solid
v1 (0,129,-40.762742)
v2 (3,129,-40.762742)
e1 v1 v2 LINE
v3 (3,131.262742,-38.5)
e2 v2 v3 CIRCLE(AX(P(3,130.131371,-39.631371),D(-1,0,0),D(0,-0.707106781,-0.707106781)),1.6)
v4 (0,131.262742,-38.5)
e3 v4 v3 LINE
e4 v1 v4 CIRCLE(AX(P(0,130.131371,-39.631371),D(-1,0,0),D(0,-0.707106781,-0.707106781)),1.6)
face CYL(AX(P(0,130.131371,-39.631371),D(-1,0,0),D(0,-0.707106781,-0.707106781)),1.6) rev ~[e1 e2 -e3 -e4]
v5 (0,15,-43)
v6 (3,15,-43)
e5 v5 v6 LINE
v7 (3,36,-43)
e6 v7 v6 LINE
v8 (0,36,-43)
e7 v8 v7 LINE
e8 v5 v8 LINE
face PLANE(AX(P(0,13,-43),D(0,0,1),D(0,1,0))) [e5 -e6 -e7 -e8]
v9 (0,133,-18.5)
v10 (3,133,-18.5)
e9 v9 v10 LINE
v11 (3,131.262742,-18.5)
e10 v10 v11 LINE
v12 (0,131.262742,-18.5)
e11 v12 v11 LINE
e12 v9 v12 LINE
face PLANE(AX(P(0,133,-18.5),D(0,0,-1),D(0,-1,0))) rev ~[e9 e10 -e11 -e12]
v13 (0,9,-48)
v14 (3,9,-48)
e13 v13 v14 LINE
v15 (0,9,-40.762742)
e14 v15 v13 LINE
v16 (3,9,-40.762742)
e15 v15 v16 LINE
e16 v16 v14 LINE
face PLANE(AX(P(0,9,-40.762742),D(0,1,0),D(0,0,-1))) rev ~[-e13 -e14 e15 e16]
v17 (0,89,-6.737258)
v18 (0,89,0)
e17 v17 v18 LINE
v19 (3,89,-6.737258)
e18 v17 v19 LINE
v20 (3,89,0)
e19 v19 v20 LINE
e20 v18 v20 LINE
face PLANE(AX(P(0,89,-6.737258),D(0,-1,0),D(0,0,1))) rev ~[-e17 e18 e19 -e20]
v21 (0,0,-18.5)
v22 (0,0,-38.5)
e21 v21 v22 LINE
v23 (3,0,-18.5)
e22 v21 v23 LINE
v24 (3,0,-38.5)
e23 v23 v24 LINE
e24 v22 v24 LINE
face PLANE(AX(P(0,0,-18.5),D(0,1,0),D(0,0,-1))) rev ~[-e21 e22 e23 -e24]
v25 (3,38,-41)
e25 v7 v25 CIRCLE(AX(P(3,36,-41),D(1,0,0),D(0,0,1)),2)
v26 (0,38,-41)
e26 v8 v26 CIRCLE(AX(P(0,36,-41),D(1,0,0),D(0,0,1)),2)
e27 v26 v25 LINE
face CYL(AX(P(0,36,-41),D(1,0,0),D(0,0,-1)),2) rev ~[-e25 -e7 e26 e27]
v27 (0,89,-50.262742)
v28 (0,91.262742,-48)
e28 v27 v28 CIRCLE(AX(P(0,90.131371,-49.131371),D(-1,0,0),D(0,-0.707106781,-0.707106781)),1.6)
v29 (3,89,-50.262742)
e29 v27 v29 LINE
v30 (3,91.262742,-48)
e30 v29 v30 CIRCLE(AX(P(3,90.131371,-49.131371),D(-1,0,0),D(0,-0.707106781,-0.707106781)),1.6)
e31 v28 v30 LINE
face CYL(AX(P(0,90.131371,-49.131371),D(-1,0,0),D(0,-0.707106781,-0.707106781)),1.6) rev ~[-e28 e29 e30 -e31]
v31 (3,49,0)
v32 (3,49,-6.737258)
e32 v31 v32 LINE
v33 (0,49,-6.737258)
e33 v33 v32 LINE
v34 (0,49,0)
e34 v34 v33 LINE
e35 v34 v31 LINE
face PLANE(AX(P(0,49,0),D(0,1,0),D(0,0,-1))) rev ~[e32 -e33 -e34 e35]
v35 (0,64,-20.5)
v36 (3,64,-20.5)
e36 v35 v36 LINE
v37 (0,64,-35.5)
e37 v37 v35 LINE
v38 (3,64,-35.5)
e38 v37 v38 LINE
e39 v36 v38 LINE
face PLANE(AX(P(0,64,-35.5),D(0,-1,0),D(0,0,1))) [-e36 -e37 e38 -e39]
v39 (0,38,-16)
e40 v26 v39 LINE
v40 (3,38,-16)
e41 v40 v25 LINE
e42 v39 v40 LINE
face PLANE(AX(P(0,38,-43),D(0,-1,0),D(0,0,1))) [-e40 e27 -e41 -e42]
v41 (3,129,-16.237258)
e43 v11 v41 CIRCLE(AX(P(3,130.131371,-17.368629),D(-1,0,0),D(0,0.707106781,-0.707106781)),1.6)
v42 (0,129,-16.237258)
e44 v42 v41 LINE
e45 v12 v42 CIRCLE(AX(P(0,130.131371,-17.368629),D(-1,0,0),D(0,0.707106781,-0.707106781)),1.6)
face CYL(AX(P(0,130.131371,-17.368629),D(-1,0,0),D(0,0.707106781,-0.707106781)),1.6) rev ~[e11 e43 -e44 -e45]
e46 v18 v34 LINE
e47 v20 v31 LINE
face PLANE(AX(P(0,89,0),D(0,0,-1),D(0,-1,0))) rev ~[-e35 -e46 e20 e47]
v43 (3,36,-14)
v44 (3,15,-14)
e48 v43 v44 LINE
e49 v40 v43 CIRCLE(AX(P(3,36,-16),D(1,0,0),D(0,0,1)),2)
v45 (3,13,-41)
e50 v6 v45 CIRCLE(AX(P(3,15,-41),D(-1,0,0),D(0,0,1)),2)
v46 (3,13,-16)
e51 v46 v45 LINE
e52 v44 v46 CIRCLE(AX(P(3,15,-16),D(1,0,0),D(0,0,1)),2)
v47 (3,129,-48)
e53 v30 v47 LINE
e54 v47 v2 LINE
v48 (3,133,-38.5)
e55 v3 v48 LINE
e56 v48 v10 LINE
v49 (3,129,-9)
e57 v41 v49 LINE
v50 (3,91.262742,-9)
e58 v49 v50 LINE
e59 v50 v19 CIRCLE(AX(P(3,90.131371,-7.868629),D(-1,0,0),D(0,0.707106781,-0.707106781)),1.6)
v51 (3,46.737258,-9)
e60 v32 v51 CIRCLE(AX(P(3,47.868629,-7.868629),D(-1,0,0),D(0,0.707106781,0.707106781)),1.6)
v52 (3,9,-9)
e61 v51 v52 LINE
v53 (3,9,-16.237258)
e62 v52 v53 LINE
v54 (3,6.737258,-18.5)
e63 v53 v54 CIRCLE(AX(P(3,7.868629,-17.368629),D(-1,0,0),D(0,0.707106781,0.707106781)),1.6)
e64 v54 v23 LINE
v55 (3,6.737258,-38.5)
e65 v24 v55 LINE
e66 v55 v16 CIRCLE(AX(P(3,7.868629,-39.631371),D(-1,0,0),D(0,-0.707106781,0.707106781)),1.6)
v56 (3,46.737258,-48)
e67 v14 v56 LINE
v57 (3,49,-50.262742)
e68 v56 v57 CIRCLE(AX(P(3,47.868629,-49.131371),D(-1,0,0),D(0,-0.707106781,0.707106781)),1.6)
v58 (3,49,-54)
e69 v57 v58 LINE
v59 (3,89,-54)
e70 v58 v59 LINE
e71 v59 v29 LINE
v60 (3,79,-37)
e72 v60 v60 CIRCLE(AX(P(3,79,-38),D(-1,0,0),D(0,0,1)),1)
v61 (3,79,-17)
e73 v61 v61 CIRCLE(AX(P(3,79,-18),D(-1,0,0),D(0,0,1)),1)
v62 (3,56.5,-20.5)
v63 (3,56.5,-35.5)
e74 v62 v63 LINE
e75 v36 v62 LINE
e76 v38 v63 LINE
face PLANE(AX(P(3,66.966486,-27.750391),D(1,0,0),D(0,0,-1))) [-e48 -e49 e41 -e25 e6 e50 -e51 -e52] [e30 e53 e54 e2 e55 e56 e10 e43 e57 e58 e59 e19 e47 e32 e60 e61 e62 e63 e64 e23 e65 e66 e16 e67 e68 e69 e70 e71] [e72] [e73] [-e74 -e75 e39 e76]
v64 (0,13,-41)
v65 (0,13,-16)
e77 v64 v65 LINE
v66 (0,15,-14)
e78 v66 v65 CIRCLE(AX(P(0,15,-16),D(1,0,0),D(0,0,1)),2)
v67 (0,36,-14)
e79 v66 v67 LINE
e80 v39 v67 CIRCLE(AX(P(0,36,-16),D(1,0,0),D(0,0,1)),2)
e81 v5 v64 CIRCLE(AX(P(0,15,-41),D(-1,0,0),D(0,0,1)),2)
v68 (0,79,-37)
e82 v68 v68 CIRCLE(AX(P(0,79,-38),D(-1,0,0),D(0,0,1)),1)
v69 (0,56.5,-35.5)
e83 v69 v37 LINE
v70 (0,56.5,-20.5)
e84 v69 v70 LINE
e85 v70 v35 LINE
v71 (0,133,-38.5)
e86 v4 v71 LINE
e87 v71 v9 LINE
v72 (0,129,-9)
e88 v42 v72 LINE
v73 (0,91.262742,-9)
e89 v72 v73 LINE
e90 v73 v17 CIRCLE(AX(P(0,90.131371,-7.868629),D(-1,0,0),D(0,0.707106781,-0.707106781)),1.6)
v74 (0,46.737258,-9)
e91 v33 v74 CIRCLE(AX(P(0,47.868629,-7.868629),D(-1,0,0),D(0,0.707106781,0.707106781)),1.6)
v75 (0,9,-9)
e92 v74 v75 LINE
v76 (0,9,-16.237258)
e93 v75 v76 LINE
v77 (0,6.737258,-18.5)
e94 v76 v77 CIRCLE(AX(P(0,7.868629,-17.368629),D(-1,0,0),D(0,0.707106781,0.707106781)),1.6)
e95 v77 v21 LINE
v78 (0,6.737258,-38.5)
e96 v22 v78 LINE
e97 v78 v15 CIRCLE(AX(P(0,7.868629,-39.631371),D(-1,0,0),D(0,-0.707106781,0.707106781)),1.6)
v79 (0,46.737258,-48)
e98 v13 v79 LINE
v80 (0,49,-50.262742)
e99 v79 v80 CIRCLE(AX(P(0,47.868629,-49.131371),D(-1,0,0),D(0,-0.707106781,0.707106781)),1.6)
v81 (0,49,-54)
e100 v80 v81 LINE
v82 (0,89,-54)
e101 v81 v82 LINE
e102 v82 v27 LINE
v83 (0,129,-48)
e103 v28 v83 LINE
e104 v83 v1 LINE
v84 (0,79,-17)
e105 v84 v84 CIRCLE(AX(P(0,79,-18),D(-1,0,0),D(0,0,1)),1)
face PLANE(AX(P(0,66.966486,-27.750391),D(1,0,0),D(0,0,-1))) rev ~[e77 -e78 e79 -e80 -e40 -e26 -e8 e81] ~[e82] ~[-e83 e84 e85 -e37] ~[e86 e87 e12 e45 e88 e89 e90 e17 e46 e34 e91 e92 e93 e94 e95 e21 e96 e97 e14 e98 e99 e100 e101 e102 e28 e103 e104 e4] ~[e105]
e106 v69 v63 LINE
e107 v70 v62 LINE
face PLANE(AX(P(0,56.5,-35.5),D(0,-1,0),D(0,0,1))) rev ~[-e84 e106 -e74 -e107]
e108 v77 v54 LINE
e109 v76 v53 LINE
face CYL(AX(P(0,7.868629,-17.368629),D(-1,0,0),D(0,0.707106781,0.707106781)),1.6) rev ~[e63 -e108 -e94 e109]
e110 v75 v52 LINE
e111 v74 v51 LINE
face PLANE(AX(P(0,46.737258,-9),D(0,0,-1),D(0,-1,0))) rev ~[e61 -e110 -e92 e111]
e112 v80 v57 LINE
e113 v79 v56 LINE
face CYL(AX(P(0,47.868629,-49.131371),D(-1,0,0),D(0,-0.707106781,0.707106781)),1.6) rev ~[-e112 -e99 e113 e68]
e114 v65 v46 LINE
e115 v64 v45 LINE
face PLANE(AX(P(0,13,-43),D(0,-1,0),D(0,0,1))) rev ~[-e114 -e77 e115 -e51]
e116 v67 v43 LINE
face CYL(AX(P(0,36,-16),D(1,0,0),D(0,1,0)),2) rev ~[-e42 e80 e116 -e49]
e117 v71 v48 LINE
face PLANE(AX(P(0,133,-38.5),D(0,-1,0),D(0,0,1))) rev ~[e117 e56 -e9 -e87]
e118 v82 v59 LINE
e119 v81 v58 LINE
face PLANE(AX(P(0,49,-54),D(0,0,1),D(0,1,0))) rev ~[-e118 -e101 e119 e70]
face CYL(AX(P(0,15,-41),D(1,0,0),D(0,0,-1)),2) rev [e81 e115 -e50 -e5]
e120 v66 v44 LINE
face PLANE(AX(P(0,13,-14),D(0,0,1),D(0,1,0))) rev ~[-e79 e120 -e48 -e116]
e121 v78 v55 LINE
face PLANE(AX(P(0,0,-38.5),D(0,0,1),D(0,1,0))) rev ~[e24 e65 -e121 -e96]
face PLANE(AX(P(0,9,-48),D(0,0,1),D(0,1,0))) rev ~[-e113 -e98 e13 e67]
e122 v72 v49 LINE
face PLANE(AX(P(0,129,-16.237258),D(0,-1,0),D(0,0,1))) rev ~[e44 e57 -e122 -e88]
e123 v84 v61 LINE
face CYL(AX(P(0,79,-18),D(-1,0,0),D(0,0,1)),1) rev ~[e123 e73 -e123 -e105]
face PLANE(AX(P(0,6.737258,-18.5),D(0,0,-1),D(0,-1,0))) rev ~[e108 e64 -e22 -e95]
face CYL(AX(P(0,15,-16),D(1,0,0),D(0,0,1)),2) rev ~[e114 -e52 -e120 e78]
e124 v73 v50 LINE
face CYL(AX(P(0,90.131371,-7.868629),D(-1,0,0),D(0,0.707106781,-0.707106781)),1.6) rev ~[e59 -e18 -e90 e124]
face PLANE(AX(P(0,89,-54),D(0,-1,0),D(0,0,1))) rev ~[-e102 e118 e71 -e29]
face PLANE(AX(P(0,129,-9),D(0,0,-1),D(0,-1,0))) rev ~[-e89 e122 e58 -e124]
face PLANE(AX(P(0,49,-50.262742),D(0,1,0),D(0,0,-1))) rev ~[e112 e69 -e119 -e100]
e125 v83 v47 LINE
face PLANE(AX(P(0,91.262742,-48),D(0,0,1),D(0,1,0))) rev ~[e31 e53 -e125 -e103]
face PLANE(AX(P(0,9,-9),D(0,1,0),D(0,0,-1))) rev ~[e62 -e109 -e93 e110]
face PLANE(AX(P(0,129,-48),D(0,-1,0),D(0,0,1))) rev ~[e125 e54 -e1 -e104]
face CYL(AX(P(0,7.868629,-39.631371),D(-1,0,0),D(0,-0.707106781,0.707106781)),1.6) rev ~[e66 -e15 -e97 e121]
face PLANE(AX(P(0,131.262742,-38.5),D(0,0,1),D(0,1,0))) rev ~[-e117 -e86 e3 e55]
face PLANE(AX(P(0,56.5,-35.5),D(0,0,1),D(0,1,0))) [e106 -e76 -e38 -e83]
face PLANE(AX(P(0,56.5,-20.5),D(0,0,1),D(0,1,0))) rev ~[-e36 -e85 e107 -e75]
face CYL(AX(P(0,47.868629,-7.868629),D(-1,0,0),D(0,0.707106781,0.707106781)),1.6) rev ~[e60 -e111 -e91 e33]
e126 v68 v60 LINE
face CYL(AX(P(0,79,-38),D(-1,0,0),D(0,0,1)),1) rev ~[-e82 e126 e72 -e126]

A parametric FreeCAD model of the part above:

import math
import FreeCAD as App
import Part
import Sketcher

V = App.Vector


def edges_at(feature, points):
    """Names of the edges that pass closest to the given points."""
    edges = feature.Shape.Edges
    near = lambda p: min(range(len(edges)), key=lambda i: edges[i].distToShape(Part.Vertex(*p))[0])
    return sorted({f"Edge{near(p) + 1}" for p in points})


def add_polygon(sketch, points):
    """Adds a closed chain of lines whose ends are joined by coincident constraints."""
    first, n = sketch.GeometryCount, len(points)
    for a, b in zip(points, points[1:] + points[:1]):
        sketch.addGeometry(Part.LineSegment(App.Vector(*a, 0), App.Vector(*b, 0)), False)
    for i in range(n):
        sketch.addConstraint(Sketcher.Constraint("Coincident", first + i, 2, first + (i + 1) % n, 1))

doc = App.newDocument("Part")
body = doc.addObject("PartDesign::Body", "Body")

sketch1 = doc.addObject("Sketcher::SketchObject", "Sketch")
body.addObject(sketch1)
sketch1.AttachmentSupport = (doc.YZ_Plane, [""])
sketch1.MapMode = "FlatFace"
sketch1.addGeometry([
    Part.LineSegment(V(6.737258, -18.5, 0), V(0, -18.5, 0)),
    Part.LineSegment(V(0, -18.5, 0), V(0, -38.5, 0)),
    Part.LineSegment(V(0, -38.5, 0), V(6.737258, -38.5, 0)),
    Part.ArcOfCircle(Part.Circle(V(7.868629, -39.631371, 0), V(0, 0, 1), 1.6), math.radians(-45), math.radians(135)),
    Part.LineSegment(V(9, -40.762742, 0), V(9, -48, 0)),
    Part.LineSegment(V(9, -48, 0), V(46.737258, -48, 0)),
    Part.ArcOfCircle(Part.Circle(V(47.868629, -49.131371, 0), V(0, 0, 1), 1.6), math.radians(-45), math.radians(135)),
    Part.LineSegment(V(49, -50.262742, 0), V(49, -54, 0)),
    Part.LineSegment(V(49, -54, 0), V(89, -54, 0)),
    Part.LineSegment(V(89, -54, 0), V(89, -50.262742, 0)),
    Part.ArcOfCircle(Part.Circle(V(90.131371, -49.131371, 0), V(0, 0, 1), 1.6), math.radians(45), math.radians(225)),
    Part.LineSegment(V(91.262742, -48, 0), V(129, -48, 0)),
    Part.LineSegment(V(129, -48, 0), V(129, -40.762742, 0)),
    Part.ArcOfCircle(Part.Circle(V(130.131371, -39.631371, 0), V(0, 0, 1), 1.6), math.radians(45), math.radians(225)),
    Part.LineSegment(V(131.262742, -38.5, 0), V(133, -38.5, 0)),
    Part.LineSegment(V(133, -38.5, 0), V(133, -18.5, 0)),
    Part.LineSegment(V(133, -18.5, 0), V(131.262742, -18.5, 0)),
    Part.ArcOfCircle(Part.Circle(V(130.131371, -17.368629, 0), V(0, 0, 1), 1.6), math.radians(135), math.radians(315)),
    Part.LineSegment(V(129, -16.237258, 0), V(129, -9, 0)),
    Part.LineSegment(V(129, -9, 0), V(91.262742, -9, 0)),
    Part.ArcOfCircle(Part.Circle(V(90.131371, -7.868629, 0), V(0, 0, 1), 1.6), math.radians(135), math.radians(315)),
    Part.LineSegment(V(89, -6.737258, 0), V(89, 0, 0)),
    Part.LineSegment(V(89, 0, 0), V(49, 0, 0)),
    Part.LineSegment(V(49, 0, 0), V(49, -6.737258, 0)),
    Part.ArcOfCircle(Part.Circle(V(47.868629, -7.868629, 0), V(0, 0, 1), 1.6), math.radians(-135), math.radians(45)),
    Part.LineSegment(V(46.737258, -9, 0), V(9, -9, 0)),
    Part.LineSegment(V(9, -9, 0), V(9, -16.237258, 0)),
    Part.ArcOfCircle(Part.Circle(V(7.868629, -17.368629, 0), V(0, 0, 1), 1.6), math.radians(-135), math.radians(45)),
], False)
sketch1.addConstraint([
    Sketcher.Constraint("Coincident", 0, 2, 1, 1),
    Sketcher.Constraint("Coincident", 1, 2, 2, 1),
    Sketcher.Constraint("Coincident", 2, 2, 3, 2),
    Sketcher.Constraint("Coincident", 3, 1, 4, 1),
    Sketcher.Constraint("Coincident", 4, 2, 5, 1),
    Sketcher.Constraint("Coincident", 5, 2, 6, 2),
    Sketcher.Constraint("Coincident", 6, 1, 7, 1),
    Sketcher.Constraint("Coincident", 7, 2, 8, 1),
    Sketcher.Constraint("Coincident", 8, 2, 9, 1),
    Sketcher.Constraint("Coincident", 9, 2, 10, 2),
    Sketcher.Constraint("Coincident", 10, 1, 11, 1),
    Sketcher.Constraint("Coincident", 11, 2, 12, 1),
    Sketcher.Constraint("Coincident", 12, 2, 13, 2),
    Sketcher.Constraint("Coincident", 13, 1, 14, 1),
    Sketcher.Constraint("Coincident", 14, 2, 15, 1),
    Sketcher.Constraint("Coincident", 15, 2, 16, 1),
    Sketcher.Constraint("Coincident", 16, 2, 17, 2),
    Sketcher.Constraint("Coincident", 17, 1, 18, 1),
    Sketcher.Constraint("Coincident", 18, 2, 19, 1),
    Sketcher.Constraint("Coincident", 19, 2, 20, 2),
    Sketcher.Constraint("Coincident", 20, 1, 21, 1),
    Sketcher.Constraint("Coincident", 21, 2, 22, 1),
    Sketcher.Constraint("Coincident", 22, 2, 23, 1),
    Sketcher.Constraint("Coincident", 23, 2, 24, 2),
    Sketcher.Constraint("Coincident", 24, 1, 25, 1),
    Sketcher.Constraint("Coincident", 25, 2, 26, 1),
    Sketcher.Constraint("Coincident", 26, 2, 27, 2),
    Sketcher.Constraint("Coincident", 27, 1, 0, 1),
    Sketcher.Constraint("Horizontal", 0),
    Sketcher.Constraint("Vertical", 1),
    Sketcher.Constraint("Horizontal", 2),
    Sketcher.Constraint("Vertical", 4),
    Sketcher.Constraint("Horizontal", 5),
    Sketcher.Constraint("Vertical", 7),
    Sketcher.Constraint("Horizontal", 8),
    Sketcher.Constraint("Vertical", 9),
    Sketcher.Constraint("Horizontal", 11),
    Sketcher.Constraint("Vertical", 12),
    Sketcher.Constraint("Horizontal", 14),
    Sketcher.Constraint("Vertical", 15),
    Sketcher.Constraint("Horizontal", 16),
    Sketcher.Constraint("Vertical", 18),
    Sketcher.Constraint("Horizontal", 19),
    Sketcher.Constraint("Vertical", 21),
    Sketcher.Constraint("Horizontal", 22),
    Sketcher.Constraint("Vertical", 23),
    Sketcher.Constraint("Horizontal", 25),
    Sketcher.Constraint("Vertical", 26),
    Sketcher.Constraint("Equal", 3, 6),
    Sketcher.Constraint("Equal", 6, 10),
    Sketcher.Constraint("Equal", 10, 13),
    Sketcher.Constraint("Equal", 13, 17),
    Sketcher.Constraint("Equal", 17, 20),
    Sketcher.Constraint("Equal", 20, 24),
    Sketcher.Constraint("Equal", 24, 27),
    Sketcher.Constraint("PointOnObject", 0, 2, -2),
    Sketcher.Constraint("PointOnObject", 21, 2, -1),
    Sketcher.Constraint("Horizontal", 6, 3, 10, 3),
    Sketcher.Constraint("Horizontal", 3, 3, 13, 3),
    Sketcher.Constraint("Horizontal", 20, 3, 24, 3),
    Sketcher.Constraint("Horizontal", 17, 3, 27, 3),
    Sketcher.Constraint("Horizontal", 6, 1, 9, 2),
    Sketcher.Constraint("Horizontal", 5, 2, 10, 1),
    Sketcher.Constraint("Horizontal", 3, 1, 12, 2),
    Sketcher.Constraint("Horizontal", 2, 2, 13, 1),
    Sketcher.Constraint("Horizontal", 0, 2, 15, 2),
    Sketcher.Constraint("Horizontal", 20, 1, 23, 2),
    Sketcher.Constraint("Horizontal", 19, 2, 24, 1),
    Sketcher.Constraint("Horizontal", 17, 1, 26, 2),
    Sketcher.Constraint("Vertical", 13, 3, 17, 3),
    Sketcher.Constraint("Vertical", 10, 3, 20, 3),
    Sketcher.Constraint("Vertical", 6, 3, 24, 3),
    Sketcher.Constraint("Vertical", 3, 3, 27, 3),
    Sketcher.Constraint("Vertical", 13, 1, 16, 2),
    Sketcher.Constraint("Vertical", 12, 2, 17, 1),
    Sketcher.Constraint("Vertical", 10, 1, 19, 2),
    Sketcher.Constraint("Vertical", 9, 2, 20, 1),
    Sketcher.Constraint("Equal", 5, 11),
    Sketcher.Constraint("Equal", 12, 18),
    Sketcher.Constraint("Equal", 2, 21),
    Sketcher.Constraint("Radius", 3, 1.6),
    Sketcher.Constraint("DistanceX", 8, 1, 8, 2, 40.0),
    Sketcher.Constraint("DistanceY", 1, 2, 1, 1, 20.0),
    Sketcher.Constraint("DistanceX", -1, 1, 3, 1, 9.0),
    Sketcher.Constraint("DistanceY", 4, 2, -1, 1, 48.0),
    Sketcher.Constraint("DistanceX", -1, 1, 6, 1, 49.0),
    Sketcher.Constraint("DistanceY", 7, 2, -1, 1, 54.0),
    Sketcher.Constraint("DistanceX", -1, 1, 14, 2, 133.0),
    Sketcher.Constraint("DistanceY", 18, 2, -1, 1, 9.0),
    Sketcher.Constraint("DistanceX", 3, 3, 6, 3, 40.0),
    Sketcher.Constraint("DistanceX", 10, 1, 13, 1, 40.0),
    Sketcher.Constraint("DistanceX", -1, 1, 3, 3, 7.868629),
])
pad1 = doc.addObject("PartDesign::Pad", "Pad")
body.addObject(pad1)
pad1.Profile = sketch1
pad1.Length = 3

sketch2 = doc.addObject("Sketcher::SketchObject", "Sketch001")
body.addObject(sketch2)
sketch2.AttachmentSupport = (doc.YZ_Plane, [""])
sketch2.MapMode = "FlatFace"
sketch2.addGeometry(Part.Circle(V(79, -38, 0), V(0, 0, 1), 1), False)
sketch2.addGeometry(Part.Circle(V(79, -18, 0), V(0, 0, 1), 1), False)
add_polygon(sketch2, [(38, -43), (13, -43), (13, -14), (38, -14)])
sketch2.addConstraint([
    Sketcher.Constraint("Horizontal", 2),
    Sketcher.Constraint("Vertical", 3),
    Sketcher.Constraint("Horizontal", 4),
    Sketcher.Constraint("Vertical", 5),
    Sketcher.Constraint("Equal", 0, 1),
    Sketcher.Constraint("Vertical", 0, 3, 1, 3),
    Sketcher.Constraint("Diameter", 0, 2.0),
    Sketcher.Constraint("DistanceX", 2, 2, 2, 1, 25.0),
    Sketcher.Constraint("DistanceY", 3, 1, 3, 2, 29.0),
    Sketcher.Constraint("DistanceX", -1, 1, 0, 3, 79.0),
    Sketcher.Constraint("DistanceY", 0, 3, -1, 1, 38.0),
    Sketcher.Constraint("DistanceY", 1, 3, -1, 1, 18.0),
    Sketcher.Constraint("DistanceX", -1, 1, 2, 2, 13.0),
    Sketcher.Constraint("DistanceY", 2, 2, -1, 1, 43.0),
])
pocket1 = doc.addObject("PartDesign::Pocket", "Pocket")
body.addObject(pocket1)
pocket1.Profile = sketch2
pocket1.Type = "ThroughAll"
pocket1.Reversed = True
doc.recompute()

fillet = doc.addObject("PartDesign::Fillet", "Fillet")
body.addObject(fillet)
fillet.Base = (pocket1, edges_at(pocket1, [
    (1.5, 38, -14),
    (1.5, 13, -14),
    (1.5, 13, -43),
    (1.5, 38, -43),
]))
fillet.Radius = 2

sketch3 = doc.addObject("Sketcher::SketchObject", "Sketch002")
body.addObject(sketch3)
sketch3.AttachmentSupport = (doc.YZ_Plane, [""])
sketch3.MapMode = "FlatFace"
add_polygon(sketch3, [(64, -35.5), (56.5, -35.5), (56.5, -20.5), (64, -20.5)])
sketch3.addConstraint([
    Sketcher.Constraint("Horizontal", 0),
    Sketcher.Constraint("Vertical", 1),
    Sketcher.Constraint("Horizontal", 2),
    Sketcher.Constraint("Vertical", 3),
    Sketcher.Constraint("DistanceY", 1, 1, 1, 2, 15.0),
    Sketcher.Constraint("DistanceX", 0, 2, 0, 1, 7.5),
    Sketcher.Constraint("DistanceX", -1, 1, 2, 2, 64.0),
    Sketcher.Constraint("DistanceY", 0, 2, -1, 1, 35.5),
])
pocket2 = doc.addObject("PartDesign::Pocket", "Pocket001")
body.addObject(pocket2)
pocket2.Profile = sketch3
pocket2.Type = "ThroughAll"
pocket2.Reversed = True

doc.recompute()
